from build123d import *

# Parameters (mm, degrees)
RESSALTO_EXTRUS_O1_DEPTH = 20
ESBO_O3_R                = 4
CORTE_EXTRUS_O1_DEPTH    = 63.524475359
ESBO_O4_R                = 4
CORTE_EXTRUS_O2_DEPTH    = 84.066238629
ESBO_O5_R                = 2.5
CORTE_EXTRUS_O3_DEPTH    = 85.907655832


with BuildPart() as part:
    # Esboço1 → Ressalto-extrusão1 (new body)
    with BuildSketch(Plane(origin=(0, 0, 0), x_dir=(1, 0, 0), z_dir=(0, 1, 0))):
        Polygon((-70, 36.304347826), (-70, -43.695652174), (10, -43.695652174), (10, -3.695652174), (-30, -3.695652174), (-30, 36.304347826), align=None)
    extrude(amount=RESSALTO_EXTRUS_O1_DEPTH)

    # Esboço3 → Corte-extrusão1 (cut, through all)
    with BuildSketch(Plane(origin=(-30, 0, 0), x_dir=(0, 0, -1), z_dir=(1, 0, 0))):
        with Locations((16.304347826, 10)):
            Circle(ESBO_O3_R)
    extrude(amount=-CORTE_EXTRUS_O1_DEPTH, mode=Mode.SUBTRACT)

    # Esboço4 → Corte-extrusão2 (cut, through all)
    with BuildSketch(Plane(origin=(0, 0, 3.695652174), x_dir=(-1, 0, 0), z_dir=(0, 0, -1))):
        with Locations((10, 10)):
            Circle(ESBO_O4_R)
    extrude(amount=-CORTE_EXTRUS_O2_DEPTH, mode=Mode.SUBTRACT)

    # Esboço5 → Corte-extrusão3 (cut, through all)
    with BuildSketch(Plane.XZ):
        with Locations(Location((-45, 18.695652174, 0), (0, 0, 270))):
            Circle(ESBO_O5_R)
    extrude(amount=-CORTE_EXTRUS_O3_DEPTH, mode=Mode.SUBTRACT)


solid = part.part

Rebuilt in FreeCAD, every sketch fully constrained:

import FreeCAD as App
import Part
import Sketcher
Q = App.Units.Quantity


def add_polygon(sketch, points):
    """Adds a closed chain of lines whose ends are joined by coincident constraints."""
    first, n = sketch.GeometryCount, len(points)
    for a, b in zip(points, points[1:] + points[:1]):
        sketch.addGeometry(Part.LineSegment(App.Vector(*a, 0), App.Vector(*b, 0)), False)
    for i in range(n):
        sketch.addConstraint(Sketcher.Constraint("Coincident", first + i, 2, first + (i + 1) % n, 1))

doc = App.newDocument("Part")
body = doc.addObject("PartDesign::Body", "Body")

sketch1 = body.newObject("Sketcher::SketchObject", "Sketch")
sketch1.AttachmentSupport = (doc.getObject("XZ_Plane"), [""])
sketch1.MapMode = "FlatFace"
add_polygon(sketch1, [(-70, -36), (-70, 44), (10, 44), (10, 4), (-30, 4), (-30, -36)])
sketch1.addConstraint([
    Sketcher.Constraint("Vertical", 0),
    Sketcher.Constraint("Horizontal", 1),
    Sketcher.Constraint("Vertical", 2),
    Sketcher.Constraint("Horizontal", 3),
    Sketcher.Constraint("Vertical", 4),
    Sketcher.Constraint("Horizontal", 5),
    Sketcher.Constraint("Equal", 3, 5),
    Sketcher.Constraint("Equal", 1, 0),
    Sketcher.Constraint("Equal", 5, 2),
    Sketcher.Constraint("DistanceX", 1, 1, 1, 2, Q("80 mm")),
    Sketcher.Constraint("DistanceX", 0, 2, -1, 1, Q("70 mm")),
    Sketcher.Constraint("DistanceY", -1, 1, 0, 2, Q("43.695652 mm")),
])
pad1 = body.newObject("PartDesign::Pad", "Pad")
pad1.Profile = sketch1
pad1.Length = 20
pad1.Reversed = True

sketch2 = body.newObject("Sketcher::SketchObject", "Sketch001")
sketch2.AttachmentSupport = (doc.getObject("YZ_Plane"), [""])
sketch2.MapMode = "FlatFace"
sketch2.AttachmentOffset = App.Placement(App.Vector(0, 0, -30), App.Rotation())
sketch2.addGeometry(Part.Circle(App.Vector(10, -16.3, 0), App.Vector(0, 0, 1), 4), False)
sketch2.addConstraint([
    Sketcher.Constraint("Diameter", 0, Q("8 mm")),
    Sketcher.Constraint("DistanceX", -1, 1, 0, 3, Q("10 mm")),
    Sketcher.Constraint("DistanceY", 0, 3, -1, 1, Q("16.304348 mm")),
])
pocket1 = body.newObject("PartDesign::Pocket", "Pocket")
pocket1.Profile = sketch2
pocket1.Type = "ThroughAll"

sketch3 = body.newObject("Sketcher::SketchObject", "Sketch002")
sketch3.AttachmentSupport = (doc.getObject("XY_Plane"), [""])
sketch3.MapMode = "FlatFace"
sketch3.AttachmentOffset = App.Placement(App.Vector(0, 0, 3.695652), App.Rotation())
sketch3.addGeometry(Part.Circle(App.Vector(-10, 10, 0), App.Vector(0, 0, 1), 4), False)
sketch3.addConstraint([
    Sketcher.Constraint("Diameter", 0, Q("8 mm")),
    Sketcher.Constraint("DistanceX", 0, 3, -1, 1, Q("10 mm")),
    Sketcher.Constraint("DistanceY", -1, 1, 0, 3, Q("10 mm")),
])
pocket2 = body.newObject("PartDesign::Pocket", "Pocket001")
pocket2.Profile = sketch3
pocket2.Type = "ThroughAll"
pocket2.Reversed = True

sketch4 = body.newObject("Sketcher::SketchObject", "Sketch003")
sketch4.AttachmentSupport = (doc.getObject("XZ_Plane"), [""])
sketch4.MapMode = "FlatFace"
sketch4.addGeometry(Part.Circle(App.Vector(-45, 18.7, 0), App.Vector(0, 0, 1), 2.5), False)
sketch4.addConstraint([
    Sketcher.Constraint("Diameter", 0, Q("5 mm")),
    Sketcher.Constraint("DistanceX", 0, 3, -1, 1, Q("45 mm")),
    Sketcher.Constraint("DistanceY", -1, 1, 0, 3, Q("18.695652 mm")),
])
pocket3 = body.newObject("PartDesign::Pocket", "Pocket002")
pocket3.Profile = sketch4
pocket3.Type = "ThroughAll"

doc.recompute()
